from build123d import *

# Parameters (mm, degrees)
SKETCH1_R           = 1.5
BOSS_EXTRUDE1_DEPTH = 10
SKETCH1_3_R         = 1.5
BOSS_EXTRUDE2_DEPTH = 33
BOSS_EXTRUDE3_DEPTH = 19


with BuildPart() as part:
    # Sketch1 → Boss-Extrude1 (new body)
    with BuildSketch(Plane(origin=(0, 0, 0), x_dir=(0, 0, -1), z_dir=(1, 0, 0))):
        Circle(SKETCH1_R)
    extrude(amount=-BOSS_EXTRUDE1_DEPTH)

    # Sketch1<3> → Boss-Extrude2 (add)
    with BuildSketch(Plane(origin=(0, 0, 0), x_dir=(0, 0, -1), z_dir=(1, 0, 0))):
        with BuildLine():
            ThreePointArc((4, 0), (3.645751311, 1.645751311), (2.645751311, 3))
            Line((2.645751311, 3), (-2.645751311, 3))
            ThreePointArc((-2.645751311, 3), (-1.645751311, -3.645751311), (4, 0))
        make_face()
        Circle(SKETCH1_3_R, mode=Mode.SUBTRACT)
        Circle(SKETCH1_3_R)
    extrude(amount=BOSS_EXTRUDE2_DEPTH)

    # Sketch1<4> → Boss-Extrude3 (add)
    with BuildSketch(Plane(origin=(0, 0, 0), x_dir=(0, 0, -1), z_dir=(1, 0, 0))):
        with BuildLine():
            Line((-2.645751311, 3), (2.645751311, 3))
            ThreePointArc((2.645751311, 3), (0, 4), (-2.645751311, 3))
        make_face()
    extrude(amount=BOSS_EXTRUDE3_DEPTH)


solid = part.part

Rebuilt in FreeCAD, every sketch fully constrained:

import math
import FreeCAD as App
import Part
import Sketcher
from FreeCAD import Vector

doc = App.newDocument("Part")
params = doc.addObject("Spreadsheet::Sheet", "Params")
for row, (alias, value) in enumerate([
    ("sketch1_diameter", "3 mm"),
    ("pad1_length", "10 mm"),
    ("sketch2_radius", "4 mm"),
    ("pad2_length", "33 mm"),
    ("sketch3_radius", "4 mm"),
    ("pad3_length", "19 mm"),
], start=1):
    params.set(f"A{row}", alias)
    params.set(f"B{row}", "=" + value)
    params.setAlias(f"B{row}", alias)

body = doc.addObject("PartDesign::Body", "Body")

# Sketch on YZ plane
sketch1 = doc.addObject("Sketcher::SketchObject", "Sketch")
body.addObject(sketch1)
sketch1.AttachmentSupport = (doc.YZ_Plane, [""])
sketch1.MapMode = "FlatFace"
sketch1.addGeometry(Part.Circle(Vector(0, 0, 0), Vector(0, 0, 1), 1.5), False)
sketch1.addConstraint([
    Sketcher.Constraint("Coincident", 0, 3, -1, 1),
    Sketcher.Constraint("Diameter", 0, 3.0),
])
sketch1.setExpression("Constraints[1]", "Params.sketch1_diameter")
pad1 = doc.addObject("PartDesign::Pad", "Pad")
body.addObject(pad1)
pad1.Profile = sketch1
pad1.setExpression("Length", "Params.pad1_length")
pad1.Reversed = True

# Sketch on YZ plane
sketch2 = doc.addObject("Sketcher::SketchObject", "Sketch001")
body.addObject(sketch2)
sketch2.AttachmentSupport = (doc.YZ_Plane, [""])
sketch2.MapMode = "FlatFace"
sketch2.addGeometry([
    Part.ArcOfCircle(Part.Circle(Vector(0, 0, 0), Vector(0, 0, 1), 4), math.radians(-90), math.radians(-41)),
    Part.LineSegment(Vector(3, -2.6, 0), Vector(3, 2.6, 0)),
    Part.ArcOfCircle(Part.Circle(Vector(0, 0, 0), Vector(0, 0, 1), 4), math.radians(41), math.radians(270)),
], False)
sketch2.addConstraint([
    Sketcher.Constraint("Coincident", 0, 2, 1, 1),
    Sketcher.Constraint("Coincident", 1, 2, 2, 1),
    Sketcher.Constraint("Tangent", 2, 2, 0, 1),
    Sketcher.Constraint("Vertical", 1),
    Sketcher.Constraint("Coincident", 0, 3, -1, 1),
    Sketcher.Constraint("Equal", 0, 2),
    Sketcher.Constraint("PointOnObject", 2, 2, -2),
    Sketcher.Constraint("Radius", 0, 4.0),
    Sketcher.Constraint("DistanceX", -1, 1, 0, 2, 3.0),
])
sketch2.setExpression("Constraints[7]", "Params.sketch2_radius")
pad2 = doc.addObject("PartDesign::Pad", "Pad001")
body.addObject(pad2)
pad2.Profile = sketch2
pad2.setExpression("Length", "Params.pad2_length")

# Sketch on YZ plane
sketch3 = doc.addObject("Sketcher::SketchObject", "Sketch002")
body.addObject(sketch3)
sketch3.AttachmentSupport = (doc.YZ_Plane, [""])
sketch3.MapMode = "FlatFace"
sketch3.addGeometry([
    Part.LineSegment(Vector(3, 2.6, 0), Vector(3, -2.6, 0)),
    Part.ArcOfCircle(Part.Circle(Vector(0, 0, 0), Vector(0, 0, 1), 4), math.radians(-41), math.radians(41)),
], False)
sketch3.addConstraint([
    Sketcher.Constraint("Coincident", 0, 1, 1, 2),
    Sketcher.Constraint("Coincident", 1, 1, 0, 2),
    Sketcher.Constraint("Vertical", 0),
    Sketcher.Constraint("Coincident", 1, 3, -1, 1),
    Sketcher.Constraint("Radius", 1, 4.0),
    Sketcher.Constraint("DistanceX", -1, 1, 0, 1, 3.0),
])
sketch3.setExpression("Constraints[4]", "Params.sketch3_radius")
pad3 = doc.addObject("PartDesign::Pad", "Pad002")
body.addObject(pad3)
pad3.Profile = sketch3
pad3.setExpression("Length", "Params.pad3_length")

doc.recompute()
